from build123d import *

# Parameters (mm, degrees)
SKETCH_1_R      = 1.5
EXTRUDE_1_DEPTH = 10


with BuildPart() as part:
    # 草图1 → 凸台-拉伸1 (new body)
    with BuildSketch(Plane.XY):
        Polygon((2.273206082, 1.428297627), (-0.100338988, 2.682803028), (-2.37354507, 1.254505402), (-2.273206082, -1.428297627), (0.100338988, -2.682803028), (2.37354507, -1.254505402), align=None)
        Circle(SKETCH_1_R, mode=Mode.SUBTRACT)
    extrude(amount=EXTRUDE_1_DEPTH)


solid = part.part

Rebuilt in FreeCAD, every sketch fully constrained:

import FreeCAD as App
import Part
import Sketcher

doc = App.newDocument("Part")
body = doc.addObject("PartDesign::Body", "Body")

sketch1 = body.newObject("Sketcher::SketchObject", "Sketch")
sketch1.AttachmentSupport = (doc.getObject("XY_Plane"), [""])
sketch1.MapMode = "FlatFace"
sketch1.addGeometry([
    Part.LineSegment(App.Vector(2.3, 1.4, 0), App.Vector(-0.1, 2.7, 0)),
    Part.LineSegment(App.Vector(-0.1, 2.7, 0), App.Vector(-2.4, 1.3, 0)),
    Part.LineSegment(App.Vector(-2.4, 1.3, 0), App.Vector(-2.3, -1.4, 0)),
    Part.LineSegment(App.Vector(-2.3, -1.4, 0), App.Vector(0.1, -2.7, 0)),
    Part.LineSegment(App.Vector(0.1, -2.7, 0), App.Vector(2.4, -1.3, 0)),
    Part.LineSegment(App.Vector(2.4, -1.3, 0), App.Vector(2.3, 1.4, 0)),
    Part.Circle(App.Vector(0, 0, 0), App.Vector(0, 0, 1), 1.5),
], False)
sketch1.addConstraint([
    Sketcher.Constraint("Coincident", 0, 2, 1, 1),
    Sketcher.Constraint("Coincident", 1, 2, 2, 1),
    Sketcher.Constraint("Coincident", 2, 2, 3, 1),
    Sketcher.Constraint("Coincident", 3, 2, 4, 1),
    Sketcher.Constraint("Coincident", 4, 2, 5, 1),
    Sketcher.Constraint("Coincident", 5, 2, 0, 1),
    Sketcher.Constraint("Coincident", 6, 3, -1, 1),
    Sketcher.Constraint("Symmetric", 0, 2, 3, 2, -1, 1),
    Sketcher.Constraint("Symmetric", 1, 2, 4, 2, -1, 1),
    Sketcher.Constraint("Symmetric", 2, 2, 5, 2, -1, 1),
    Sketcher.Constraint("Equal", 0, 1),
    Sketcher.Constraint("Equal", 1, 2),
    Sketcher.Constraint("Diameter", 6, 3.0),
    Sketcher.Constraint("DistanceY", 2, 2, 0, 2, 4.111101),
    Sketcher.Constraint("Distance", 0, 2.684679),
    Sketcher.Constraint("DistanceX", 0, 2, -1, 1, 0.100339),
    Sketcher.Constraint("DistanceX", 1, 2, 2, 2, 0.100339),
])
pad1 = body.newObject("PartDesign::Pad", "Pad")
pad1.Profile = sketch1
pad1.Length = 10

doc.recompute()
